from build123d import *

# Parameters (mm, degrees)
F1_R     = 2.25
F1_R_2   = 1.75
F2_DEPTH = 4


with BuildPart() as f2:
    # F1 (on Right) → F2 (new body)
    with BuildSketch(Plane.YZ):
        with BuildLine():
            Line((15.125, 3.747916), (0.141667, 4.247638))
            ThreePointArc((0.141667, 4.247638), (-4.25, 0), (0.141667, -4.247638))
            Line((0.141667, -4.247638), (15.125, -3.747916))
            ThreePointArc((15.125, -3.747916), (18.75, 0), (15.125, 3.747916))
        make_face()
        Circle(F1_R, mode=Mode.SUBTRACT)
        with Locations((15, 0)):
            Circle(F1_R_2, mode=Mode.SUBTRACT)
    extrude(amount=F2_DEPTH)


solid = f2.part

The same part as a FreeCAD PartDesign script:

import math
import FreeCAD as App
import Part
import Sketcher

doc = App.newDocument("Part")
body = doc.addObject("PartDesign::Body", "Body")

# Sketch on YZ plane
sketch1 = body.newObject("Sketcher::SketchObject", "Sketch")
sketch1.AttachmentSupport = (doc.getObject("YZ_Plane"), [""])
sketch1.MapMode = "FlatFace"
sketch1.addGeometry([
    Part.LineSegment(App.Vector(15.1, 3.7, 0), App.Vector(0.1, 4.2, 0)),  # 0
    Part.ArcOfCircle(Part.Circle(App.Vector(0, 0, 0), App.Vector(0, 0, 1), 4.2), math.radians(88), math.radians(272)),  # 1
    Part.LineSegment(App.Vector(0.1, -4.2, 0), App.Vector(15.1, -3.7, 0)),  # 2
    Part.ArcOfCircle(Part.Circle(App.Vector(15, 0, 0), App.Vector(0, 0, 1), 3.7), math.radians(-88), math.radians(88)),  # 3
    Part.Circle(App.Vector(0, 0, 0), App.Vector(0, 0, 1), 2.2),  # 4
    Part.Circle(App.Vector(15, 0, 0), App.Vector(0, 0, 1), 1.8),  # 5
], False)
sketch1.addConstraint([
    Sketcher.Constraint("Tangent", 0, 2, 1, 1),
    Sketcher.Constraint("Tangent", 1, 2, 2, 1),
    Sketcher.Constraint("Tangent", 2, 2, 3, 1),
    Sketcher.Constraint("Tangent", 3, 2, 0, 1),
    Sketcher.Constraint("Coincident", 1, 3, -1, 1),
    Sketcher.Constraint("Coincident", 4, 3, -1, 1),
    Sketcher.Constraint("Coincident", 5, 3, 3, 3),
    Sketcher.Constraint("PointOnObject", 3, 3, -1),
    Sketcher.Constraint("Diameter", 4, 4.5),
    Sketcher.Constraint("Diameter", 5, 3.5),
    Sketcher.Constraint("Radius", 1, 4.25),
    Sketcher.Constraint("Radius", 3, 3.75),
    Sketcher.Constraint("DistanceX", -1, 1, 3, 3, 15.0),
])
pad1 = body.newObject("PartDesign::Pad", "Pad")
pad1.Profile = sketch1
pad1.Length = 4

doc.recompute()
